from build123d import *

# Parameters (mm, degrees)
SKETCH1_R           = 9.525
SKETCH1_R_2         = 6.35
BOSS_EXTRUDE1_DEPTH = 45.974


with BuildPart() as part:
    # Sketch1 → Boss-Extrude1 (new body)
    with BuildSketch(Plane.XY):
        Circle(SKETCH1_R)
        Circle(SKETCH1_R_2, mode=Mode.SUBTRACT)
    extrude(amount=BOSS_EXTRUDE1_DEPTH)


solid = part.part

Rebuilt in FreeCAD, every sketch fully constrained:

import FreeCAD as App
import Part
import Sketcher

V = App.Vector
Q = App.Units.Quantity

doc = App.newDocument("Part")
params = doc.addObject("Spreadsheet::Sheet", "Params")
for row, (alias, value) in enumerate([
    ("sketch1_diameter", "0.5 in"),
    ("sketch1_diameter2", "0.75 in"),
    ("pad1_length", "1.81 in"),
], start=1):
    params.set(f"A{row}", alias)
    params.set(f"B{row}", "=" + value)
    params.setAlias(f"B{row}", alias)

body = doc.addObject("PartDesign::Body", "Body")

sketch1 = doc.addObject("Sketcher::SketchObject", "Sketch")
body.addObject(sketch1)
sketch1.AttachmentSupport = (doc.XY_Plane, [""])
sketch1.MapMode = "FlatFace"
sketch1.addGeometry([
    Part.Circle(V(0, 0, 0), V(0, 0, 1), 10),
    Part.Circle(V(0, 0, 0), V(0, 0, 1), 6),
], False)
sketch1.addConstraint([
    Sketcher.Constraint("Coincident", 0, 3, -1, 1),
    Sketcher.Constraint("Coincident", 1, 3, -1, 1),
    Sketcher.Constraint("Diameter", 1, Q("0.5 in")),
    Sketcher.Constraint("Diameter", 0, Q("0.75 in")),
])
sketch1.setExpression("Constraints[2]", "Params.sketch1_diameter")
sketch1.setExpression("Constraints[3]", "Params.sketch1_diameter2")
pad1 = doc.addObject("PartDesign::Pad", "Pad")
body.addObject(pad1)
pad1.Profile = sketch1
pad1.setExpression("Length", "Params.pad1_length")

doc.recompute()
